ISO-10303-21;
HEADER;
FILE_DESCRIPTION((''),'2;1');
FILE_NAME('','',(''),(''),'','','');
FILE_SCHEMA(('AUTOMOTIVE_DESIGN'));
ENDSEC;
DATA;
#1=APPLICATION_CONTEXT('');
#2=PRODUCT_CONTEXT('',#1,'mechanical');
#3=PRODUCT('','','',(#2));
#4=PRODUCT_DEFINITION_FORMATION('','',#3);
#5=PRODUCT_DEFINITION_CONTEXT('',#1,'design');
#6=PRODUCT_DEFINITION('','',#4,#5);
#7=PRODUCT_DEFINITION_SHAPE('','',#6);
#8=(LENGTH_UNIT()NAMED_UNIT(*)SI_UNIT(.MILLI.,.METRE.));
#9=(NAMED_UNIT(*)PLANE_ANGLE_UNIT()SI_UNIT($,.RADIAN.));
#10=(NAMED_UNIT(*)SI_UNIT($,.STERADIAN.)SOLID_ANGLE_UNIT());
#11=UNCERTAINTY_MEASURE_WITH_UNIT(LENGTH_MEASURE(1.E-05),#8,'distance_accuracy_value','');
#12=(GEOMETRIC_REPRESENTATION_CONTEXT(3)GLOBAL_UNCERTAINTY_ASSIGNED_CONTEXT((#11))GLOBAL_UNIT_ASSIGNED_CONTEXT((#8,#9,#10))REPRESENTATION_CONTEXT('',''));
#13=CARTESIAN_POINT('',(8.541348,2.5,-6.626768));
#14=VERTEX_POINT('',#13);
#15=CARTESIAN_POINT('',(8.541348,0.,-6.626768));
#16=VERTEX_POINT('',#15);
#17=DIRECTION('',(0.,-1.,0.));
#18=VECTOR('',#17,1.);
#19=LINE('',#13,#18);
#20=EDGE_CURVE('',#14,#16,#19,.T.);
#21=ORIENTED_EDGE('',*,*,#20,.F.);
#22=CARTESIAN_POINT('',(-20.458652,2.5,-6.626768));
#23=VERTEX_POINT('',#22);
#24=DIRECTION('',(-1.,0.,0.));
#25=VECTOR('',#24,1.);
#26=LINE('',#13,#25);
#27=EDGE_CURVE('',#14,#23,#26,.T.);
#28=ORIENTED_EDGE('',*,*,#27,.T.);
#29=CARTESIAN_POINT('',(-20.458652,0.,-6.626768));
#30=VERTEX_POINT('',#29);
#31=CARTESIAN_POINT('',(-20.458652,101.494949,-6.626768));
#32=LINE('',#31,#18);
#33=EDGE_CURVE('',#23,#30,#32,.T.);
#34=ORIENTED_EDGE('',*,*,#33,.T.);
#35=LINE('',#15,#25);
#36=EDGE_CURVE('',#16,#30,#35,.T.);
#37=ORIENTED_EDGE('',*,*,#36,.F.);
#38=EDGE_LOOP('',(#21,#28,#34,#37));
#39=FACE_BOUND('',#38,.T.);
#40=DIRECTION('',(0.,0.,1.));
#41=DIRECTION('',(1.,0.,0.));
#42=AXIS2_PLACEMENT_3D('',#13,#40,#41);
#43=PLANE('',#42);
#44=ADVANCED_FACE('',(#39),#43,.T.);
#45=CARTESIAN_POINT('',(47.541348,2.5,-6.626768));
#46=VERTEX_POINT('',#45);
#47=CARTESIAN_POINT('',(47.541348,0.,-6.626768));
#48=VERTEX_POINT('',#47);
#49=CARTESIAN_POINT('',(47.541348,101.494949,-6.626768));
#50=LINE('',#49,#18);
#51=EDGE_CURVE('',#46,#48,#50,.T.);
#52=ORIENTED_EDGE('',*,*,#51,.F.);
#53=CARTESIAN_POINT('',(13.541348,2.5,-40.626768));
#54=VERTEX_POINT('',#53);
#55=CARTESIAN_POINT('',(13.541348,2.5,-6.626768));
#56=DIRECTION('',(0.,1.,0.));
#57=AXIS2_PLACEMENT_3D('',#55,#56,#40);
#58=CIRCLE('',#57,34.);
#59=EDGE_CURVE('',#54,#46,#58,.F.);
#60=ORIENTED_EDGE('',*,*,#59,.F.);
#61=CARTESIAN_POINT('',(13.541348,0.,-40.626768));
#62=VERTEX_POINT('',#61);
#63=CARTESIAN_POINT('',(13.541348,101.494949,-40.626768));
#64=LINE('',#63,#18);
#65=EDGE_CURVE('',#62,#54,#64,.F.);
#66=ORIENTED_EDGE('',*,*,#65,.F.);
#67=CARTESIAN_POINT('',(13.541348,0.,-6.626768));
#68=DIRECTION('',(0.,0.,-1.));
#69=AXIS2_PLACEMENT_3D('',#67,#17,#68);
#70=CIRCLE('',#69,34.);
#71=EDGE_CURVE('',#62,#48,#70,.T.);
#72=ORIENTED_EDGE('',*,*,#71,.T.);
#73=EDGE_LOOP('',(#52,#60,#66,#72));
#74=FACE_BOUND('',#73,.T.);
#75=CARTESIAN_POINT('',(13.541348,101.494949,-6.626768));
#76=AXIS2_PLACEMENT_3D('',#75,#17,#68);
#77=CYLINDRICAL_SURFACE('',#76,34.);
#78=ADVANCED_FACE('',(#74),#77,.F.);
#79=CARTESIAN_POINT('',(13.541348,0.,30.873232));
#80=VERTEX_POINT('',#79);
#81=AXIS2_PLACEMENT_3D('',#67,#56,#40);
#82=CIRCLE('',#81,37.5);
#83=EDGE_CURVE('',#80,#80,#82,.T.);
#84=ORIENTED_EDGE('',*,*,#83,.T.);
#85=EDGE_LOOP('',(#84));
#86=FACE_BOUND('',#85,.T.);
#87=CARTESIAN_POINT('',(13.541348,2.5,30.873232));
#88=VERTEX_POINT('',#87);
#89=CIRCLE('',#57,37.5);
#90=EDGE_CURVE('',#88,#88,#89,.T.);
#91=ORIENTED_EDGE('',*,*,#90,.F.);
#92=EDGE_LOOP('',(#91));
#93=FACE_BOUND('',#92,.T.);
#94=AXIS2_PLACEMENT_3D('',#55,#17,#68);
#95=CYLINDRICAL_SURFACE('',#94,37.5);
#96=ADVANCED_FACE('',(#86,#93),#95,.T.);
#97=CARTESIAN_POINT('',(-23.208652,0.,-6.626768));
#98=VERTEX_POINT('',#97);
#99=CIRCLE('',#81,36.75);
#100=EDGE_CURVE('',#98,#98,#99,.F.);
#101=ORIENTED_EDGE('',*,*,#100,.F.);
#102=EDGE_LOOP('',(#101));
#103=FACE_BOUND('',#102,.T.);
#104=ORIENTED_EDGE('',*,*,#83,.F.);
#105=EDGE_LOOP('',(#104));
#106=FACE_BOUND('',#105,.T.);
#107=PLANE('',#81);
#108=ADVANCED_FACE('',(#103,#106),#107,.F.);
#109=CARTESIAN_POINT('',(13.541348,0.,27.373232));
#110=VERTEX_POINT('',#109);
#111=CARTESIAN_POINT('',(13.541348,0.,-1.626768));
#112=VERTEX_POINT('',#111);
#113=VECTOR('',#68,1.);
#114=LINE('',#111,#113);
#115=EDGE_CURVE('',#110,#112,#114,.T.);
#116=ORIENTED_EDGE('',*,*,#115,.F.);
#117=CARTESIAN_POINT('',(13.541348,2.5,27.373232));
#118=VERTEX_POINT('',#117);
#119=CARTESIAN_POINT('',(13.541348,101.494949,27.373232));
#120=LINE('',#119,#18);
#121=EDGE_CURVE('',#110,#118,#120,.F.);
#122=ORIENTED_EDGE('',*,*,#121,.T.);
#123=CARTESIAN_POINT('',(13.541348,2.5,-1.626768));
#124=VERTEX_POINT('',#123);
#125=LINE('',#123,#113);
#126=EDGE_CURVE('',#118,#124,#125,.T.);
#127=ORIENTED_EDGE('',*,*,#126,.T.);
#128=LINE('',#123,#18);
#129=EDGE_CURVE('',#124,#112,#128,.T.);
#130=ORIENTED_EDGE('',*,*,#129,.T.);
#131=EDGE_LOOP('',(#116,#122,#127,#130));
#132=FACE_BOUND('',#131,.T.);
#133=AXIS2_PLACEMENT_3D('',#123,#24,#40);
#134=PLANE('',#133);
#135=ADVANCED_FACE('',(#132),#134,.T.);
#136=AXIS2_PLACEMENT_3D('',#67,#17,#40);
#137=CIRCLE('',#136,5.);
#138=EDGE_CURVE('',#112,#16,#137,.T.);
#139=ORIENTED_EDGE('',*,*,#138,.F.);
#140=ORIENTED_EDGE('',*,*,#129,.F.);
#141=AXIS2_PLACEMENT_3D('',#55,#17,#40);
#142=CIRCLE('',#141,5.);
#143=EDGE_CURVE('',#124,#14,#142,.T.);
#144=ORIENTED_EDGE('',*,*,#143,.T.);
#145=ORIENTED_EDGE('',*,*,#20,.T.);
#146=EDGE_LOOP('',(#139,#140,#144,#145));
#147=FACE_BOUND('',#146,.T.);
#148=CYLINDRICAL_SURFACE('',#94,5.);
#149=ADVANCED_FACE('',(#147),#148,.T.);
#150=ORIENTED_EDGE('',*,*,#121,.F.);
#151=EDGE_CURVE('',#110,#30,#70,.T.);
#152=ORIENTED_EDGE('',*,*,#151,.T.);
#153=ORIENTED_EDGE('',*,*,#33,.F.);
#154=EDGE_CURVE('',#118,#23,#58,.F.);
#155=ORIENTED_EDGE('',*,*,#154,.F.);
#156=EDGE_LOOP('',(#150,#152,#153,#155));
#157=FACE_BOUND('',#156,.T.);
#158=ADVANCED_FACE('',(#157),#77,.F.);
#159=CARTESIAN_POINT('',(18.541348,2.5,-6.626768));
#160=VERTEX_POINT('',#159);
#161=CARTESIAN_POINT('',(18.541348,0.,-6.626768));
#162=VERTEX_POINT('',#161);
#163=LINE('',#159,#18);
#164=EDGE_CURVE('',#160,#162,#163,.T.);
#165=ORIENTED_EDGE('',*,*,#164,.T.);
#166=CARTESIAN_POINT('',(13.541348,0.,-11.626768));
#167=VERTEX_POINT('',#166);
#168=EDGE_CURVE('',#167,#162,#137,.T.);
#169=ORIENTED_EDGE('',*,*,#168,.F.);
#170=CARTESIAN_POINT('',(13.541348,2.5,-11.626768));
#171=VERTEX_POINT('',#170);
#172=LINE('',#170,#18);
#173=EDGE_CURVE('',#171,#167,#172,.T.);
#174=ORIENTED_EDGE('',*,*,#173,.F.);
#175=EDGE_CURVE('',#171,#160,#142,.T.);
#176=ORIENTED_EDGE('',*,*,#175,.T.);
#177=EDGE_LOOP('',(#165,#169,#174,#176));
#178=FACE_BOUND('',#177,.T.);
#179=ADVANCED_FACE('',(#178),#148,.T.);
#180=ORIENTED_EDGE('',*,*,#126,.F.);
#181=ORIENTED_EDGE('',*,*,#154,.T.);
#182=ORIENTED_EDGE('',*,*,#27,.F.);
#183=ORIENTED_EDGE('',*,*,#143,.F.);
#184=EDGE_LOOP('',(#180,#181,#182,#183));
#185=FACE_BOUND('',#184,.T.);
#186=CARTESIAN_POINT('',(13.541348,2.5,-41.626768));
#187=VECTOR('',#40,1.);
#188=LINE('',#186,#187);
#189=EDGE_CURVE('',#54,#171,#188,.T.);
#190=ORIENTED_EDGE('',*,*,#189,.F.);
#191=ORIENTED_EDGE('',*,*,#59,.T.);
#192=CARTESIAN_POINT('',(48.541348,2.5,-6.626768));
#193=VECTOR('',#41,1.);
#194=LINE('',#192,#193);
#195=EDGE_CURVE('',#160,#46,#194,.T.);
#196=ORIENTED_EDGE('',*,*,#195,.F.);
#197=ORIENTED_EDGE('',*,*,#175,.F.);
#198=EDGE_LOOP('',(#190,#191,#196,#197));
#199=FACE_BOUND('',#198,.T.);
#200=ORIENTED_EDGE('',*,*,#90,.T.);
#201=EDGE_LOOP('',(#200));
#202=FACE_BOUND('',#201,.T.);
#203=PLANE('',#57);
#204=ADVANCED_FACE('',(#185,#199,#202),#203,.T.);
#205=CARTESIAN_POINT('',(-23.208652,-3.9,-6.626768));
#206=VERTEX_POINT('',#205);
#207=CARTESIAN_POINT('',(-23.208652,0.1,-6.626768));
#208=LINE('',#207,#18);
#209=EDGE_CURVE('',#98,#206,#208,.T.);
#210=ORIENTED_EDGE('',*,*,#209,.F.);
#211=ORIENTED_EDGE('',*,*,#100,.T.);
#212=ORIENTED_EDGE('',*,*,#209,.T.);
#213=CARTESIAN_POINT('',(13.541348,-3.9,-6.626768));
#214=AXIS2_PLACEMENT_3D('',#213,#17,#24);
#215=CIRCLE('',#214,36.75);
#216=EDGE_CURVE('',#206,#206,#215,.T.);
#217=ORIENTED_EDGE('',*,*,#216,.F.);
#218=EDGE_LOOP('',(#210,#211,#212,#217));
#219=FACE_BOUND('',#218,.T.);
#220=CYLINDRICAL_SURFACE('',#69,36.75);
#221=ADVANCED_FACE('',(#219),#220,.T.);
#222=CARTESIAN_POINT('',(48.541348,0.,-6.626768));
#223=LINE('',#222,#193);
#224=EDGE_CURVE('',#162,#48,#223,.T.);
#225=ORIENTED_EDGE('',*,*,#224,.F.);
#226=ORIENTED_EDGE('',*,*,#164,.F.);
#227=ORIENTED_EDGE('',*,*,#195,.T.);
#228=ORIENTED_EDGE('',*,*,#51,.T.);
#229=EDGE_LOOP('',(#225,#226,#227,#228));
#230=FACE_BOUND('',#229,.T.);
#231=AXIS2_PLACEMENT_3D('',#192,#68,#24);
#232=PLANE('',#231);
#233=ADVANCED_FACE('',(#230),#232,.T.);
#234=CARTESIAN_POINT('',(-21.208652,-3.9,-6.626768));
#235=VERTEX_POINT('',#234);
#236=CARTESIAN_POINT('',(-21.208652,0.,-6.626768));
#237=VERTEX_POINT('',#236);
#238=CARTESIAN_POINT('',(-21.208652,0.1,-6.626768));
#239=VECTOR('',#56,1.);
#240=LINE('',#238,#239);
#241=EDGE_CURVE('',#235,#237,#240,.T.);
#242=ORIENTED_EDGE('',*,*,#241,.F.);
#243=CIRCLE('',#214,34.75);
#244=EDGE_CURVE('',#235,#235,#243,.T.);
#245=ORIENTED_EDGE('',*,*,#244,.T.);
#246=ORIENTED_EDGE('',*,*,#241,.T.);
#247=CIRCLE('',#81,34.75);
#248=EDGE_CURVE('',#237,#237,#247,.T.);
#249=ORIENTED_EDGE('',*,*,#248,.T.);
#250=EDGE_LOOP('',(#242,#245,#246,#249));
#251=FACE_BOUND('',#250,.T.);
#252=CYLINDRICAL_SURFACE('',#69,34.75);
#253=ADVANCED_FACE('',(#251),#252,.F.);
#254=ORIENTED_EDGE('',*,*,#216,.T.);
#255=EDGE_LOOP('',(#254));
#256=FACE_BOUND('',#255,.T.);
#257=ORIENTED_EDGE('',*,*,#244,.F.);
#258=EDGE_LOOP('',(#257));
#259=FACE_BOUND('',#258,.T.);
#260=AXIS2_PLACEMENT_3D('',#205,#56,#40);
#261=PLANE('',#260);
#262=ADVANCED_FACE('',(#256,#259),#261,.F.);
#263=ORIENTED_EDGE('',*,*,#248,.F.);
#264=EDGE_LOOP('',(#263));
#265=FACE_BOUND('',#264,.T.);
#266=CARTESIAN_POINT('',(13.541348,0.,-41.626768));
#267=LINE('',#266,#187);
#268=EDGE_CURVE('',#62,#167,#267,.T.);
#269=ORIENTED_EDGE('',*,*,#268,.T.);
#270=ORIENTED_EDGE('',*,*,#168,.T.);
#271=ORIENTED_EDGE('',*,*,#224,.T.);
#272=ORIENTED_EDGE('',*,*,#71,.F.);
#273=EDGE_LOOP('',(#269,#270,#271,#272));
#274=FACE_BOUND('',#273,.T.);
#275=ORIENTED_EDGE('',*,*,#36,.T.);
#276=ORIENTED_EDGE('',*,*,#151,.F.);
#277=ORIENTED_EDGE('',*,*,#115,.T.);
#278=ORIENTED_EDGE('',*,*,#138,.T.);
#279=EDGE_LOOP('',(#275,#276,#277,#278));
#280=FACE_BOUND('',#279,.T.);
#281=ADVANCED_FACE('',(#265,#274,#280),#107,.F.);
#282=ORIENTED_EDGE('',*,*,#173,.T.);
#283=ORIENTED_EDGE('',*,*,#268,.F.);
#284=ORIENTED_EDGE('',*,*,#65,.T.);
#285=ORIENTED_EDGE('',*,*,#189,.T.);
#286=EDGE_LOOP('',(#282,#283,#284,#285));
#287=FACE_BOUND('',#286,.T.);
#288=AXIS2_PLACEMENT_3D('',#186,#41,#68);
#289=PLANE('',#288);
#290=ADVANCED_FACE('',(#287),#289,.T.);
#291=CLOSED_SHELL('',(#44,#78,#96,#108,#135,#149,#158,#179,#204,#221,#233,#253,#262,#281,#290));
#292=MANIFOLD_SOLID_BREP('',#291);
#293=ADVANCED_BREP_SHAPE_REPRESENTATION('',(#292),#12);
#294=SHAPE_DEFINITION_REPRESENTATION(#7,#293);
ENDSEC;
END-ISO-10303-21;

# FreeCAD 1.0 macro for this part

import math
import FreeCAD as App
import Part
import Sketcher

V = App.Vector
Q = App.Units.Quantity

doc = App.newDocument("Part")
params = doc.addObject("Spreadsheet::Sheet", "Params")
for row, (alias, value) in enumerate([
    ("sketch1_diameter", "75 mm"),
    ("sketch1_radius", "5 mm"),
    ("sketch1_radius2", "35 mm"),
    ("pad1_length", "2.5 mm"),
    ("sketch2_width", "2 mm"),
    ("sketch2_height", "4 mm"),
    ("sketch3_diameter", "72.5 mm"),
    ("sketch4_diameter", "70 mm"),
    ("sketch4_diameter2", "68 mm"),
    ("pad2_length", "2.5 mm"),
], start=1):
    params.set(f"A{row}", alias)
    params.set(f"B{row}", "=" + value)
    params.setAlias(f"B{row}", alias)

body = doc.addObject("PartDesign::Body", "Body")

sketch1 = body.newObject("Sketcher::SketchObject", "Sketch")
sketch1.AttachmentSupport = (doc.getObject("XZ_Plane"), [""])
sketch1.MapMode = "FlatFace"
sketch1.addGeometry(Part.Circle(V(14, -7, 0), V(0, 0, 1), 38), False)
sketch1.addGeometry(Part.LineSegment(V(-21, -7, 0), V(9, -7, 0)), False)
sketch1.addGeometry(Part.ArcOfCircle(Part.Circle(V(14, -7, 0), V(0, 0, 1), 5), math.radians(90), math.radians(180)), False)
sketch1.addGeometry(Part.LineSegment(V(14, -2, 0), V(14, 28, 0)), False)
sketch1.addGeometry(Part.ArcOfCircle(Part.Circle(V(14, -7, 0), V(0, 0, 1), 35), math.radians(90), math.radians(180)), False)
sketch1.addGeometry(Part.LineSegment(V(14, -12, 0), V(14, -42, 0)), False)
sketch1.addGeometry(Part.ArcOfCircle(Part.Circle(V(14, -7, 0), V(0, 0, 1), 35), math.radians(-90), math.radians(0)), False)
sketch1.addGeometry(Part.LineSegment(V(49, -7, 0), V(19, -7, 0)), False)
sketch1.addGeometry(Part.ArcOfCircle(Part.Circle(V(14, -7, 0), V(0, 0, 1), 5), math.radians(-90), math.radians(0)), False)
sketch1.addConstraint(Sketcher.Constraint("Coincident", 1, 2, 2, 2))
sketch1.addConstraint(Sketcher.Constraint("Coincident", 2, 1, 3, 1))
sketch1.addConstraint(Sketcher.Constraint("Coincident", 3, 2, 4, 1))
sketch1.addConstraint(Sketcher.Constraint("Coincident", 4, 2, 1, 1))
sketch1.addConstraint(Sketcher.Constraint("Coincident", 5, 2, 6, 1))
sketch1.addConstraint(Sketcher.Constraint("Coincident", 6, 2, 7, 1))
sketch1.addConstraint(Sketcher.Constraint("Coincident", 7, 2, 8, 2))
sketch1.addConstraint(Sketcher.Constraint("Coincident", 8, 1, 5, 1))
sketch1.addConstraint(Sketcher.Constraint("Horizontal", 1))
sketch1.addConstraint(Sketcher.Constraint("Vertical", 3))
sketch1.addConstraint(Sketcher.Constraint("Vertical", 5))
sketch1.addConstraint(Sketcher.Constraint("Horizontal", 7))
sketch1.addConstraint(Sketcher.Constraint("Coincident", 2, 3, 0, 3))
sketch1.addConstraint(Sketcher.Constraint("Coincident", 4, 3, 0, 3))
sketch1.addConstraint(Sketcher.Constraint("Coincident", 6, 3, 0, 3))
sketch1.addConstraint(Sketcher.Constraint("Coincident", 8, 3, 0, 3))
sketch1.addConstraint(Sketcher.Constraint("Equal", 4, 6))
sketch1.addConstraint(Sketcher.Constraint("Equal", 2, 8))
sketch1.addConstraint(Sketcher.Constraint("Horizontal", 8, 3, 1, 2))
sketch1.addConstraint(Sketcher.Constraint("Horizontal", 4, 2, 6, 2))
sketch1.addConstraint(Sketcher.Constraint("Vertical", 8, 3, 2, 1))
sketch1.addConstraint(Sketcher.Constraint("Vertical", 3, 2, 5, 2))
sketch1.addConstraint(Sketcher.Constraint("Diameter", 0, Q("75 mm")))
sketch1.addConstraint(Sketcher.Constraint("Radius", 2, Q("5 mm")))
sketch1.addConstraint(Sketcher.Constraint("Radius", 4, Q("35 mm")))
sketch1.addConstraint(Sketcher.Constraint("DistanceX", -1, 1, 0, 3, Q("13.541348 mm")))
sketch1.addConstraint(Sketcher.Constraint("DistanceY", 0, 3, -1, 1, Q("6.626768 mm")))
sketch1.setExpression("Constraints[22]", "Params.sketch1_diameter")
sketch1.setExpression("Constraints[23]", "Params.sketch1_radius")
sketch1.setExpression("Constraints[24]", "Params.sketch1_radius2")
pad1 = body.newObject("PartDesign::Pad", "Pad")
pad1.Profile = sketch1
pad1.setExpression("Length", "Params.pad1_length")
pad1.Reversed = True

sketch2 = body.newObject("Sketcher::SketchObject", "Sketch001")
sketch2.AttachmentSupport = (doc.getObject("XY_Plane"), [""])
sketch2.MapMode = "FlatFace"
sketch2.AttachmentOffset = App.Placement(V(0, 0, -6.626768), App.Rotation())
sketch2.addGeometry(Part.LineSegment(V(-23.2, 0.1, 0), V(-23.2, -3.9, 0)), False)
sketch2.addGeometry(Part.LineSegment(V(-23.2, -3.9, 0), V(-21.2, -3.9, 0)), False)
sketch2.addGeometry(Part.LineSegment(V(-21.2, -3.9, 0), V(-21.2, 0.1, 0)), False)
sketch2.addGeometry(Part.LineSegment(V(-21.2, 0.1, 0), V(-23.2, 0.1, 0)), False)
sketch2.addConstraint(Sketcher.Constraint("Coincident", 0, 2, 1, 1))
sketch2.addConstraint(Sketcher.Constraint("Coincident", 1, 2, 2, 1))
sketch2.addConstraint(Sketcher.Constraint("Coincident", 2, 2, 3, 1))
sketch2.addConstraint(Sketcher.Constraint("Coincident", 3, 2, 0, 1))
sketch2.addConstraint(Sketcher.Constraint("Vertical", 0))
sketch2.addConstraint(Sketcher.Constraint("Horizontal", 1))
sketch2.addConstraint(Sketcher.Constraint("Vertical", 2))
sketch2.addConstraint(Sketcher.Constraint("Horizontal", 3))
sketch2.addConstraint(Sketcher.Constraint("DistanceX", 1, 1, 1, 2, Q("2 mm")))
sketch2.addConstraint(Sketcher.Constraint("DistanceY", 0, 2, 0, 1, Q("4 mm")))
sketch2.addConstraint(Sketcher.Constraint("DistanceY", 0, 2, -1, 1, Q("3.9 mm")))
sketch2.addConstraint(Sketcher.Constraint("DistanceX", 0, 2, -1, 1, Q("23.208652 mm")))
sketch2.setExpression("Constraints[8]", "Params.sketch2_width")
sketch2.setExpression("Constraints[9]", "Params.sketch2_height")

sketch3 = body.newObject("Sketcher::SketchObject", "Sketch002")
sketch3.AttachmentSupport = (doc.getObject("XZ_Plane"), [""])
sketch3.MapMode = "FlatFace"
sketch3.addGeometry(Part.Circle(V(14, -7, 0), V(0, 0, 1), 36), False)
sketch3.addConstraint(Sketcher.Constraint("Diameter", 0, Q("72.5 mm")))
sketch3.addConstraint(Sketcher.Constraint("DistanceX", -1, 1, 0, 3, Q("13.541348 mm")))
sketch3.addConstraint(Sketcher.Constraint("DistanceY", 0, 3, -1, 1, Q("6.626768 mm")))
sketch3.setExpression("Constraints[0]", "Params.sketch3_diameter")
doc.recompute()

additivepipe = body.newObject("PartDesign::AdditivePipe", "AdditivePipe")
additivepipe.Profile = sketch2
additivepipe.Spine = (sketch3, ["Edge1"])

sketch4 = body.newObject("Sketcher::SketchObject", "Sketch003")
sketch4.AttachmentSupport = (doc.getObject("XZ_Plane"), [""])
sketch4.MapMode = "FlatFace"
sketch4.addGeometry(Part.Circle(V(14, -7, 0), V(0, 0, 1), 35), False)
sketch4.addGeometry(Part.Circle(V(14, -7, 0), V(0, 0, 1), 34), False)
sketch4.addConstraint(Sketcher.Constraint("Coincident", 1, 3, 0, 3))
sketch4.addConstraint(Sketcher.Constraint("Diameter", 0, Q("70 mm")))
sketch4.addConstraint(Sketcher.Constraint("Diameter", 1, Q("68 mm")))
sketch4.addConstraint(Sketcher.Constraint("DistanceX", -1, 1, 0, 3, Q("13.541348 mm")))
sketch4.addConstraint(Sketcher.Constraint("DistanceY", 0, 3, -1, 1, Q("6.626768 mm")))
sketch4.setExpression("Constraints[1]", "Params.sketch4_diameter")
sketch4.setExpression("Constraints[2]", "Params.sketch4_diameter2")
pad2 = body.newObject("PartDesign::Pad", "Pad001")
pad2.Profile = sketch4
pad2.setExpression("Length", "Params.pad2_length")
pad2.Reversed = True

doc.recompute()
